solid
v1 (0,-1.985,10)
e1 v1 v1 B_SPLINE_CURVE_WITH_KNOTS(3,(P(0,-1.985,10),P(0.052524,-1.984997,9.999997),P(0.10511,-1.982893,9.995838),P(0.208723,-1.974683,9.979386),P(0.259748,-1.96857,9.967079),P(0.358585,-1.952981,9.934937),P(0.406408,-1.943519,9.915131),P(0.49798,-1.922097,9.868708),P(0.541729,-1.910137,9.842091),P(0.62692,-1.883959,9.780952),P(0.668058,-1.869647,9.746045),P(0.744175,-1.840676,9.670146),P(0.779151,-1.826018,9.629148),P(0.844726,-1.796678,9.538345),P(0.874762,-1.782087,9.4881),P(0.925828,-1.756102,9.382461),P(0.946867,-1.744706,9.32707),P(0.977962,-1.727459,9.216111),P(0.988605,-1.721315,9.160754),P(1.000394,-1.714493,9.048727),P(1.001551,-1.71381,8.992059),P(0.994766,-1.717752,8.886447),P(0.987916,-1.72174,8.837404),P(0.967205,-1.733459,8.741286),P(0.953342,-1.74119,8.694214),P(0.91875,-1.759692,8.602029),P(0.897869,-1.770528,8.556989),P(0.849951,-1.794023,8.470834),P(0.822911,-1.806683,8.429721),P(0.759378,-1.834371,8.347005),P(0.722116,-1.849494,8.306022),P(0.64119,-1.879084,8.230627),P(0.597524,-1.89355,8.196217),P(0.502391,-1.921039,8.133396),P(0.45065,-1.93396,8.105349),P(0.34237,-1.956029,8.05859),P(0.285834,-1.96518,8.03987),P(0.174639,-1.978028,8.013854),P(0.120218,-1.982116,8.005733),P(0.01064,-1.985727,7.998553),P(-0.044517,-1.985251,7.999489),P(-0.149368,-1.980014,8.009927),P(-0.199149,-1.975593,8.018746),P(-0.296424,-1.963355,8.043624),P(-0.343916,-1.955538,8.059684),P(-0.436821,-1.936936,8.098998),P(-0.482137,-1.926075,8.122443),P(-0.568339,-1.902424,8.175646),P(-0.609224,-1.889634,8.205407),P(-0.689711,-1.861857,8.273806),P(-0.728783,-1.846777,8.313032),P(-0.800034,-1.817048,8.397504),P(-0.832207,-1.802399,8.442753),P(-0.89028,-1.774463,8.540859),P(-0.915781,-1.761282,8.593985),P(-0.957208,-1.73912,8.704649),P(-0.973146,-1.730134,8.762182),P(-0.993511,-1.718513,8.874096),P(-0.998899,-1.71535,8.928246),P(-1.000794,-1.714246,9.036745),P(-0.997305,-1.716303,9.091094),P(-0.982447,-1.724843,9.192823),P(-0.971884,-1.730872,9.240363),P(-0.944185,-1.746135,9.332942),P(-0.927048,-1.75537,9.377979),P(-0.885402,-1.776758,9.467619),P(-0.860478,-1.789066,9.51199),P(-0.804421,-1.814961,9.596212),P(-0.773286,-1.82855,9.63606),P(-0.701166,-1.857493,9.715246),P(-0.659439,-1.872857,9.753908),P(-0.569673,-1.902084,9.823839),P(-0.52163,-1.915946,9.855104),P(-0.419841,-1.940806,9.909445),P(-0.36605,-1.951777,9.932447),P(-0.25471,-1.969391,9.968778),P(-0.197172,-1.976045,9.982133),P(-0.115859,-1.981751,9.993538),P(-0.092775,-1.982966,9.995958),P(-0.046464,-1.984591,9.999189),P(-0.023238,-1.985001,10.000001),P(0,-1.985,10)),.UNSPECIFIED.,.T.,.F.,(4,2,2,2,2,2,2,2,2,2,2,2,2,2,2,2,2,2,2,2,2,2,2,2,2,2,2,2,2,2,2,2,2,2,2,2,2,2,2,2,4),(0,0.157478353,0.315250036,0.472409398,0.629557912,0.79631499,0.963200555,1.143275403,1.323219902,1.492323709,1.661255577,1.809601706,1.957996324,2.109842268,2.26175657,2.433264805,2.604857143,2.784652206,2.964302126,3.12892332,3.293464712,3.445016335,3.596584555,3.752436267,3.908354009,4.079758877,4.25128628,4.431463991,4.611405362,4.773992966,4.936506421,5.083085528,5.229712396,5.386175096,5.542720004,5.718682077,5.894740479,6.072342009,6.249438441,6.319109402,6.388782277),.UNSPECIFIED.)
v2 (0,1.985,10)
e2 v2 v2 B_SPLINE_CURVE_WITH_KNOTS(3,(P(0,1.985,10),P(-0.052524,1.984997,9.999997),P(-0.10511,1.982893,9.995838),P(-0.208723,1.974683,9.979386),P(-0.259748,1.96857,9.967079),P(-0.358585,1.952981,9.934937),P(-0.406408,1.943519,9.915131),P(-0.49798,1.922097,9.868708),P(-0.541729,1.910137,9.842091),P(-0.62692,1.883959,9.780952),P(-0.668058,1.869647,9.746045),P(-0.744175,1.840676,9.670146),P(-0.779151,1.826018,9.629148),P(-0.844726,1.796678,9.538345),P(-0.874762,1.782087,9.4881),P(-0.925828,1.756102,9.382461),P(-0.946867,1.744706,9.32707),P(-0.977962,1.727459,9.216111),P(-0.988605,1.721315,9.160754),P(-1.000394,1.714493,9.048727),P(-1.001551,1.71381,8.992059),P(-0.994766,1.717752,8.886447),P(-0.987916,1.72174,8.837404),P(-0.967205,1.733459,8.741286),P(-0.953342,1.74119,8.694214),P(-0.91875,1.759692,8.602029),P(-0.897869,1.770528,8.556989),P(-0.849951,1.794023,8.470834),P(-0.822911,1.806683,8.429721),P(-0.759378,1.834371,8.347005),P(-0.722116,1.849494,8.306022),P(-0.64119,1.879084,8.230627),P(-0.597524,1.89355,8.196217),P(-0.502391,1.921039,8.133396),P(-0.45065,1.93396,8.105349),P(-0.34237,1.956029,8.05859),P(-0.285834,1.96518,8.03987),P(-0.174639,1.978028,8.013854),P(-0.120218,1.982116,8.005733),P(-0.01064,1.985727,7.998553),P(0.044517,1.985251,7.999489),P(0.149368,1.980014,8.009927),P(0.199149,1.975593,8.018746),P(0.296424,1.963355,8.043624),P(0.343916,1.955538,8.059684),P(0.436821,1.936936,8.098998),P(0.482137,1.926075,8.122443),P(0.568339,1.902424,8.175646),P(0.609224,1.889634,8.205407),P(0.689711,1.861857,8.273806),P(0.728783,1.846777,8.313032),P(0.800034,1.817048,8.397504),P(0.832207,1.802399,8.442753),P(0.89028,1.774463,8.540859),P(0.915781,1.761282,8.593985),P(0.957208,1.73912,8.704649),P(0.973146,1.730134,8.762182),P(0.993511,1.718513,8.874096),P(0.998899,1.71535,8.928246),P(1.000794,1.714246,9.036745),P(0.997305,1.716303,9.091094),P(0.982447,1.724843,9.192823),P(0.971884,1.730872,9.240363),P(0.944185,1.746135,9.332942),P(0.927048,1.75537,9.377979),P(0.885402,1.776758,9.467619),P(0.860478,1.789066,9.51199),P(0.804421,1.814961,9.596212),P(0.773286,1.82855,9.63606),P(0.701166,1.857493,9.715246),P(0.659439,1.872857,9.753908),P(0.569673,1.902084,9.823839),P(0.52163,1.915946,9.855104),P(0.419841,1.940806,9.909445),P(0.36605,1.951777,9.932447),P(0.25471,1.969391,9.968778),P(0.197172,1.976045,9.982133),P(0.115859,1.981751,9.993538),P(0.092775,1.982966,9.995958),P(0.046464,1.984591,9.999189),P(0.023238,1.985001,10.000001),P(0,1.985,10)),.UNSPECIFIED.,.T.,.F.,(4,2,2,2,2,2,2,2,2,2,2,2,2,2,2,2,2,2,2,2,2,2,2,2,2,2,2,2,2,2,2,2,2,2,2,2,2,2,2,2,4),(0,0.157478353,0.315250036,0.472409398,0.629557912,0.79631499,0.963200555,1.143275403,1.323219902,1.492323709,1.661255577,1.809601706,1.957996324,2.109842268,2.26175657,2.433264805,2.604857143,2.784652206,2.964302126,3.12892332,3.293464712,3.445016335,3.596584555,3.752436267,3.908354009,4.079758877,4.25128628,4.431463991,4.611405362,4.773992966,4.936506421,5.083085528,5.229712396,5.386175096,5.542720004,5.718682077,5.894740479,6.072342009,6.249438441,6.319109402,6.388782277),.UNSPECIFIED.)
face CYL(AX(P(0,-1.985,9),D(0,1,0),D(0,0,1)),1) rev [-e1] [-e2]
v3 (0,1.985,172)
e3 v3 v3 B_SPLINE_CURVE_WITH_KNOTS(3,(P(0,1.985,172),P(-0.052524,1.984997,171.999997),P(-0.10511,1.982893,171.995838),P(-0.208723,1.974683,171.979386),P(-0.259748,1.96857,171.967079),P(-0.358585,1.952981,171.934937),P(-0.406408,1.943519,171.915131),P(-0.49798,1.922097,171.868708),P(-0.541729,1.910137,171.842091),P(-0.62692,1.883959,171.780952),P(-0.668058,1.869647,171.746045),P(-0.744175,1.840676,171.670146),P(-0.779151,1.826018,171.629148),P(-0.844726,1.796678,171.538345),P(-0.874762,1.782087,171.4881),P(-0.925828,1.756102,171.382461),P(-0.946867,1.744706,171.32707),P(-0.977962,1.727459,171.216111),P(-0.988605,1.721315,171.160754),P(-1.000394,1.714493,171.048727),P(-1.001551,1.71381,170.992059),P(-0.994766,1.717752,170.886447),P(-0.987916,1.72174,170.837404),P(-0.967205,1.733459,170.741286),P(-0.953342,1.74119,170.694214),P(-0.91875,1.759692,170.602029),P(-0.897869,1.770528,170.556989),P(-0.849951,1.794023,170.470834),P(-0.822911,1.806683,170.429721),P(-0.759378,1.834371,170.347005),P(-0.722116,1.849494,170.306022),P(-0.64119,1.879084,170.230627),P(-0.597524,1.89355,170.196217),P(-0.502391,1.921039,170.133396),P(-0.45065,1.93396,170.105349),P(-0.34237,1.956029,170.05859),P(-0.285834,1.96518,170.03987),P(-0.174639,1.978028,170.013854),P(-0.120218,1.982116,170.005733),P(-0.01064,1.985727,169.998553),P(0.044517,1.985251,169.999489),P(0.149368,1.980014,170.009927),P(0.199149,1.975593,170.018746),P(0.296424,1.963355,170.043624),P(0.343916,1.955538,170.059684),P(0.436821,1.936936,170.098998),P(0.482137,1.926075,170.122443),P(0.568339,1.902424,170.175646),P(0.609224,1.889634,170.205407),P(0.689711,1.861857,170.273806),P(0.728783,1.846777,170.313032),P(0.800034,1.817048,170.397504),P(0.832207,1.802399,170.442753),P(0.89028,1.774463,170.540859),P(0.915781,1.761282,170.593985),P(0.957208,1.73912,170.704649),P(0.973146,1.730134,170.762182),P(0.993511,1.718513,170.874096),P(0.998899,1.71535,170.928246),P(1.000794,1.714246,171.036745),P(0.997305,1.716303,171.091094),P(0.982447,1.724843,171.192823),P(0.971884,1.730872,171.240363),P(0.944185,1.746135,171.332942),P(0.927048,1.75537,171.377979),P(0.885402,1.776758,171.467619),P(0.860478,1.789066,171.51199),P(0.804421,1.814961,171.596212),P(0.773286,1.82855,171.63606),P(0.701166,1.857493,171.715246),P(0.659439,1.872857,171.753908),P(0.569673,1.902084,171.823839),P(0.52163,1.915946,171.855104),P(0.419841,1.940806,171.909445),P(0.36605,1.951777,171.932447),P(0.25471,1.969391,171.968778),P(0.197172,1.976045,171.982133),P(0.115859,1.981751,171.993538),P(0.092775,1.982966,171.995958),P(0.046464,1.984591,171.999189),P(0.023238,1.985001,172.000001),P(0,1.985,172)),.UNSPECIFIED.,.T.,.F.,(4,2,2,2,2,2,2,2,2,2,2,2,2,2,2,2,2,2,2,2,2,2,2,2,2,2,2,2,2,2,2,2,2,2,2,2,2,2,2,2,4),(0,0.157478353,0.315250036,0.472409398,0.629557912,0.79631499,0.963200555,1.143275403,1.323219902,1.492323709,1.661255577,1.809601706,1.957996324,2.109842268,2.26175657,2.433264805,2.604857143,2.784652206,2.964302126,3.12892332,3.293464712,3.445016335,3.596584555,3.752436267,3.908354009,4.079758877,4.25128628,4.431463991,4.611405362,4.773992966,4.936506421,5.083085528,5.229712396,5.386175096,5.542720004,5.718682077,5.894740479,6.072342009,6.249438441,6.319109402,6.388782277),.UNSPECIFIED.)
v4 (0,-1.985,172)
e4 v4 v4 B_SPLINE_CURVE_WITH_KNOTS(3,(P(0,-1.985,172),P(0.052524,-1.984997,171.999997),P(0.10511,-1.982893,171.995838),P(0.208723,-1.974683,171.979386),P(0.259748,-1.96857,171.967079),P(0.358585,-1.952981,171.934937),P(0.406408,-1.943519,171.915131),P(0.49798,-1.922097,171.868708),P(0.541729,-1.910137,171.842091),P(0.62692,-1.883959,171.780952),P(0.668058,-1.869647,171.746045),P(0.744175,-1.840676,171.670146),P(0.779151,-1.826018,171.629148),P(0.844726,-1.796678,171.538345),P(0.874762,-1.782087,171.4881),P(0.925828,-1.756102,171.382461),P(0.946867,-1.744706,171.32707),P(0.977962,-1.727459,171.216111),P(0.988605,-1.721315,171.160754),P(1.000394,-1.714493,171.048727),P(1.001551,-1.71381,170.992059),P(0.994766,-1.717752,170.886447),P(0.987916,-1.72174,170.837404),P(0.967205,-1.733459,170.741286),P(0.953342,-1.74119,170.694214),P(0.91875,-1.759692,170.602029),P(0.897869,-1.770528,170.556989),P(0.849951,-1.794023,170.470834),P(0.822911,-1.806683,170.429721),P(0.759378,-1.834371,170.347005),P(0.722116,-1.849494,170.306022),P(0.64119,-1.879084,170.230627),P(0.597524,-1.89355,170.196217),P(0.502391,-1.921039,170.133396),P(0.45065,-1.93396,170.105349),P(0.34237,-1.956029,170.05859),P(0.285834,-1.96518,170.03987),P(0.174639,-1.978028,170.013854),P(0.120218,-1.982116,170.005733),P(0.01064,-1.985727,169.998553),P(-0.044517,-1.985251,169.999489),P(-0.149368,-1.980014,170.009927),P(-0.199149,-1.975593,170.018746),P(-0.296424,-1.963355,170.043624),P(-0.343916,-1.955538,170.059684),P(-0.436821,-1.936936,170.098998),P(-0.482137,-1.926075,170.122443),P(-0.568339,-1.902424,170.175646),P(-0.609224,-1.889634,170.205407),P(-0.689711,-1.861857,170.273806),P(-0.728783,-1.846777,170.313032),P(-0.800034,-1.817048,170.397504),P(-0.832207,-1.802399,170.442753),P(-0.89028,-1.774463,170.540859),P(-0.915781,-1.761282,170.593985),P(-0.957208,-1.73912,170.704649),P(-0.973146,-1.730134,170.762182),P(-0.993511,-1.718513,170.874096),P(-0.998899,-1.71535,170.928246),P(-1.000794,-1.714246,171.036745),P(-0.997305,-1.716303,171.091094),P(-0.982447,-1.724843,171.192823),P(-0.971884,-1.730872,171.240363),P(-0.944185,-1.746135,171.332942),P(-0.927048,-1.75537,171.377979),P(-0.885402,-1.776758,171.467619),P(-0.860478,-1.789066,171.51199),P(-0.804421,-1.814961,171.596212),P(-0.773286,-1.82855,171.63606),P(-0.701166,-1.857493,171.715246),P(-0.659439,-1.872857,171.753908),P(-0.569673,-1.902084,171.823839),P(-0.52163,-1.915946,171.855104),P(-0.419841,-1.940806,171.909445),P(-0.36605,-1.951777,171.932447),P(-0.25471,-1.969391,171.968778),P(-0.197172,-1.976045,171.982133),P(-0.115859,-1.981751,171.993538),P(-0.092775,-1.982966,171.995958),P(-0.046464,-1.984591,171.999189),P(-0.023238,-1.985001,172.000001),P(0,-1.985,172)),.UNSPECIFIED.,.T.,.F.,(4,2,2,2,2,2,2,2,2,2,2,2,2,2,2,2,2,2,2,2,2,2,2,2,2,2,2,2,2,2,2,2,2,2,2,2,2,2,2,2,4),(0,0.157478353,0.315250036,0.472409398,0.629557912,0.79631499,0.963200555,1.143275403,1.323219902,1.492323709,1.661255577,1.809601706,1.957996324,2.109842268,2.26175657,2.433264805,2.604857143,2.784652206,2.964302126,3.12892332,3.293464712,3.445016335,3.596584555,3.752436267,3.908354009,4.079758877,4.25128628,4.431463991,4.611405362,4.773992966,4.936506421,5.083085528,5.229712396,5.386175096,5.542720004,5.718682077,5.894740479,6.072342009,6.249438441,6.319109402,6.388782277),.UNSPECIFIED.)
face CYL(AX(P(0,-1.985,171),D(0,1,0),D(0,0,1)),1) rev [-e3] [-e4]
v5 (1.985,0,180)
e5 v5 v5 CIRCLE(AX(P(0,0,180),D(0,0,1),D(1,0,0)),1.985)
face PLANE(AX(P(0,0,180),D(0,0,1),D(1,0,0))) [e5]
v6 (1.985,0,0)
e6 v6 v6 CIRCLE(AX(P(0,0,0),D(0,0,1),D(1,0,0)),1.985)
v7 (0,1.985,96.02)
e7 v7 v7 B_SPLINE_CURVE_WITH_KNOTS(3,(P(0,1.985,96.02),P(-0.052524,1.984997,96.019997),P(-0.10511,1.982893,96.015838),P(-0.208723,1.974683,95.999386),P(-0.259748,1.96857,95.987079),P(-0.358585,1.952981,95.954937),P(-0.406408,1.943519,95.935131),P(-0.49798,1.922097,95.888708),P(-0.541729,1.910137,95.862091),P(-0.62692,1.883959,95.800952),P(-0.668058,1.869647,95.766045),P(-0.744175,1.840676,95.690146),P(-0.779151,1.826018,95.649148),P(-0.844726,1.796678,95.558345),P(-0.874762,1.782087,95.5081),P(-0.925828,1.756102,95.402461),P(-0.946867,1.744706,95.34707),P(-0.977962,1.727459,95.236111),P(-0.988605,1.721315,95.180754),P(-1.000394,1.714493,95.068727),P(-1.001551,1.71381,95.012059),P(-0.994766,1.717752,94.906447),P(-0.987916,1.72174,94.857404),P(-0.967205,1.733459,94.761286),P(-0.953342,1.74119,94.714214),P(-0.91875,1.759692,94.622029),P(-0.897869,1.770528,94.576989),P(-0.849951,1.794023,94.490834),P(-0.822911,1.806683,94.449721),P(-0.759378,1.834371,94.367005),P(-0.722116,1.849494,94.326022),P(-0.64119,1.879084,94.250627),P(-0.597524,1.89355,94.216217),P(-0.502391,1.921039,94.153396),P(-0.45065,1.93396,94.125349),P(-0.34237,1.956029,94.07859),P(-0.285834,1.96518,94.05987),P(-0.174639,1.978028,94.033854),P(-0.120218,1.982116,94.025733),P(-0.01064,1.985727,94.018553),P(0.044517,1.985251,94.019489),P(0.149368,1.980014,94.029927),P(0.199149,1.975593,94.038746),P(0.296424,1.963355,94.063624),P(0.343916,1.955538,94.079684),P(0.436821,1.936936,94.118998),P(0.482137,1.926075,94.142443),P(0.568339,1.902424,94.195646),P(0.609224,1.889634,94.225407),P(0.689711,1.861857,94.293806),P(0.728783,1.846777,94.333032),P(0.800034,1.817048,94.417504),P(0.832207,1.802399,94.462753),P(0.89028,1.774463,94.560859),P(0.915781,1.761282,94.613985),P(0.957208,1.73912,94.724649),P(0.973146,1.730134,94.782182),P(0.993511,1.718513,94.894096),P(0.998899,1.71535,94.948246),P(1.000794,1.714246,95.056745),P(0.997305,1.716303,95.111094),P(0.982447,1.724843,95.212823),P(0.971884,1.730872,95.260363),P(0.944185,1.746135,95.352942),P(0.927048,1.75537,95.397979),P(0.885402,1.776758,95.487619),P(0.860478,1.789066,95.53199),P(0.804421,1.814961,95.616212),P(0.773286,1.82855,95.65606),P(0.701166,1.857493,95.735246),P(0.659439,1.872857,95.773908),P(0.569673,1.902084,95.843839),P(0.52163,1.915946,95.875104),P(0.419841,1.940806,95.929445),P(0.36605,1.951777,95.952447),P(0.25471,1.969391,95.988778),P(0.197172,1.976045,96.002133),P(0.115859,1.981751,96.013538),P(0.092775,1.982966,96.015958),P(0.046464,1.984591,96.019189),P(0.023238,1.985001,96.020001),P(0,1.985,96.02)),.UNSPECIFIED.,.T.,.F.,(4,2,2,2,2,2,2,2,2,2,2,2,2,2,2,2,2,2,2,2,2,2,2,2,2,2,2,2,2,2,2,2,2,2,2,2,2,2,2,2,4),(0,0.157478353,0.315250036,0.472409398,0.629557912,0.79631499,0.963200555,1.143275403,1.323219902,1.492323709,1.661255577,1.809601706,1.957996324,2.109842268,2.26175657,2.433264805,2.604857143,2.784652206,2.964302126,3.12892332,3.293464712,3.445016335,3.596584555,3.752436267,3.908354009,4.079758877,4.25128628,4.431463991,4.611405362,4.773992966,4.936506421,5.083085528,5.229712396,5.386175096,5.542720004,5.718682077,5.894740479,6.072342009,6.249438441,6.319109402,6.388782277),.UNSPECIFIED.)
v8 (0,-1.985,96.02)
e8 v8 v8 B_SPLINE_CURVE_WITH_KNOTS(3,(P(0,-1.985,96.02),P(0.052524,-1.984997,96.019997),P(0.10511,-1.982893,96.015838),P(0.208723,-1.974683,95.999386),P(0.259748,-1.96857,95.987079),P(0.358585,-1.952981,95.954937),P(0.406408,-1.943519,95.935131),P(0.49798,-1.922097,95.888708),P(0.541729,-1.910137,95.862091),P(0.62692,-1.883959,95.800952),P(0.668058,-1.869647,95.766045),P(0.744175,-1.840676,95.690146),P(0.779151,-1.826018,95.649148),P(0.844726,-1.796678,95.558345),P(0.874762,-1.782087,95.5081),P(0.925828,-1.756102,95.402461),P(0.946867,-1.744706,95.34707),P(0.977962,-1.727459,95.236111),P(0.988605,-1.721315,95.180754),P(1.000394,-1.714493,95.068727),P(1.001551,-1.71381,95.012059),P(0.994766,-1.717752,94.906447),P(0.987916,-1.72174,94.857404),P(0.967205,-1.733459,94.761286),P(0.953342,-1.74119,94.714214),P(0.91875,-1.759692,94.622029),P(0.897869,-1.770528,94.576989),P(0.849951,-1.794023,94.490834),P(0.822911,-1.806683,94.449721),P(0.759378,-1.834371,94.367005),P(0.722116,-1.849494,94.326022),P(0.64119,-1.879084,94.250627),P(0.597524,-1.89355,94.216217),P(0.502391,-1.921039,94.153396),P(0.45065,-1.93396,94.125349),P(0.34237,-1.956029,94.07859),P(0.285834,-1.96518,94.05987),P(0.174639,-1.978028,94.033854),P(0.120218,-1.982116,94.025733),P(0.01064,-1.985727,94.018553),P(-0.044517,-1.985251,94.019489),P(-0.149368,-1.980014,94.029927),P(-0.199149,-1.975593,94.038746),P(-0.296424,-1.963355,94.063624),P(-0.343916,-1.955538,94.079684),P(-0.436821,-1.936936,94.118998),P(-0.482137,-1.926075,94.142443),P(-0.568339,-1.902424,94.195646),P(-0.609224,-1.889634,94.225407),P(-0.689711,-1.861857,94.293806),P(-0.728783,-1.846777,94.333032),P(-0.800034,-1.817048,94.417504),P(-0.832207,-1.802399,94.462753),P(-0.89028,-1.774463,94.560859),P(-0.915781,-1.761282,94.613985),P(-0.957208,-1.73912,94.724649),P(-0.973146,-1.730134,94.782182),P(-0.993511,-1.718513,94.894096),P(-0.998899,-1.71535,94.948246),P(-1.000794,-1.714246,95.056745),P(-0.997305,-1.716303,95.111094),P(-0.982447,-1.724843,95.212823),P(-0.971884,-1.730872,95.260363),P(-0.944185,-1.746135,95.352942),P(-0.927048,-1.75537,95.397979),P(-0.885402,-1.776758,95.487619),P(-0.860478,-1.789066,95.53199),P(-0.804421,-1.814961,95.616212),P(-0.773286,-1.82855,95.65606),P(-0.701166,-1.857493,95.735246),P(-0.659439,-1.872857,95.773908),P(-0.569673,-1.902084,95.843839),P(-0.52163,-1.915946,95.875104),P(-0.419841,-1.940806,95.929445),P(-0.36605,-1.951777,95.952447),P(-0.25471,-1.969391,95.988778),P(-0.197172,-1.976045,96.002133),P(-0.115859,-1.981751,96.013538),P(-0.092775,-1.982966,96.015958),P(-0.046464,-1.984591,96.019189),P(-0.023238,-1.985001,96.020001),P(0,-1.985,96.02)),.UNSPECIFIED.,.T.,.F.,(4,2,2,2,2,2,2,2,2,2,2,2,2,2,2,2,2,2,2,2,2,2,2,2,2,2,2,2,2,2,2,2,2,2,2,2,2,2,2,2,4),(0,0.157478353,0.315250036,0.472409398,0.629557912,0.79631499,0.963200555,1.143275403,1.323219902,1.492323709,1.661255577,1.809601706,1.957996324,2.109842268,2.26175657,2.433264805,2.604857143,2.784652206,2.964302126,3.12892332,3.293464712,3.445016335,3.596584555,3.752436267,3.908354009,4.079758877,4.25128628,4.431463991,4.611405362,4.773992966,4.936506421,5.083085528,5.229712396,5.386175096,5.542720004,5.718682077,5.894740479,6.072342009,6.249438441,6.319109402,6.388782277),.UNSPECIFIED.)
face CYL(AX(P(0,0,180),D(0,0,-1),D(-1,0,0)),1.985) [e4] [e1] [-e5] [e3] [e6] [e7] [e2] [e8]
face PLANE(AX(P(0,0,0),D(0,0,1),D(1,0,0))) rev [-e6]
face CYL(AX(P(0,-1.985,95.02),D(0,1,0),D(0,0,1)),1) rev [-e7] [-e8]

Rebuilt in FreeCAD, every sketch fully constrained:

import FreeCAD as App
import Part
import Sketcher

doc = App.newDocument("Part")
body = doc.addObject("PartDesign::Body", "Body")

# Sketch on XY plane
sketch1 = body.newObject("Sketcher::SketchObject", "Sketch")
sketch1.AttachmentSupport = (doc.getObject("XY_Plane"), [""])
sketch1.MapMode = "FlatFace"
sketch1.addGeometry(Part.Circle(App.Vector(0, 0, 0), App.Vector(0, 0, 1), 2), False)
sketch1.addConstraint([
    Sketcher.Constraint("Coincident", 0, 3, -1, 1),
    Sketcher.Constraint("Diameter", 0, 3.97),
])
pad1 = body.newObject("PartDesign::Pad", "Pad")
pad1.Profile = sketch1
pad1.Length = 180

# Sketch on XZ plane
sketch2 = body.newObject("Sketcher::SketchObject", "Sketch001")
sketch2.AttachmentSupport = (doc.getObject("XZ_Plane"), [""])
sketch2.MapMode = "FlatFace"
sketch2.addGeometry([
    Part.Circle(App.Vector(0, 171, 0), App.Vector(0, 0, 1), 1),
    Part.Circle(App.Vector(0, 9, 0), App.Vector(0, 0, 1), 1),
    Part.Circle(App.Vector(0, 95, 0), App.Vector(0, 0, 1), 1),
], False)
sketch2.addConstraint([
    Sketcher.Constraint("Equal", 0, 1),
    Sketcher.Constraint("Equal", 1, 2),
    Sketcher.Constraint("PointOnObject", 0, 3, -2),
    Sketcher.Constraint("PointOnObject", 1, 3, -2),
    Sketcher.Constraint("PointOnObject", 2, 3, -2),
    Sketcher.Constraint("Diameter", 0, 2.0),
    Sketcher.Constraint("DistanceY", -1, 1, 0, 3, 171.0),
    Sketcher.Constraint("DistanceY", -1, 1, 1, 3, 9.0),
    Sketcher.Constraint("DistanceY", -1, 1, 2, 3, 95.02),
])
pocket1 = body.newObject("PartDesign::Pocket", "Pocket")
pocket1.Profile = sketch2
pocket1.Type = "ThroughAll"
pocket1.Midplane = True

doc.recompute()
